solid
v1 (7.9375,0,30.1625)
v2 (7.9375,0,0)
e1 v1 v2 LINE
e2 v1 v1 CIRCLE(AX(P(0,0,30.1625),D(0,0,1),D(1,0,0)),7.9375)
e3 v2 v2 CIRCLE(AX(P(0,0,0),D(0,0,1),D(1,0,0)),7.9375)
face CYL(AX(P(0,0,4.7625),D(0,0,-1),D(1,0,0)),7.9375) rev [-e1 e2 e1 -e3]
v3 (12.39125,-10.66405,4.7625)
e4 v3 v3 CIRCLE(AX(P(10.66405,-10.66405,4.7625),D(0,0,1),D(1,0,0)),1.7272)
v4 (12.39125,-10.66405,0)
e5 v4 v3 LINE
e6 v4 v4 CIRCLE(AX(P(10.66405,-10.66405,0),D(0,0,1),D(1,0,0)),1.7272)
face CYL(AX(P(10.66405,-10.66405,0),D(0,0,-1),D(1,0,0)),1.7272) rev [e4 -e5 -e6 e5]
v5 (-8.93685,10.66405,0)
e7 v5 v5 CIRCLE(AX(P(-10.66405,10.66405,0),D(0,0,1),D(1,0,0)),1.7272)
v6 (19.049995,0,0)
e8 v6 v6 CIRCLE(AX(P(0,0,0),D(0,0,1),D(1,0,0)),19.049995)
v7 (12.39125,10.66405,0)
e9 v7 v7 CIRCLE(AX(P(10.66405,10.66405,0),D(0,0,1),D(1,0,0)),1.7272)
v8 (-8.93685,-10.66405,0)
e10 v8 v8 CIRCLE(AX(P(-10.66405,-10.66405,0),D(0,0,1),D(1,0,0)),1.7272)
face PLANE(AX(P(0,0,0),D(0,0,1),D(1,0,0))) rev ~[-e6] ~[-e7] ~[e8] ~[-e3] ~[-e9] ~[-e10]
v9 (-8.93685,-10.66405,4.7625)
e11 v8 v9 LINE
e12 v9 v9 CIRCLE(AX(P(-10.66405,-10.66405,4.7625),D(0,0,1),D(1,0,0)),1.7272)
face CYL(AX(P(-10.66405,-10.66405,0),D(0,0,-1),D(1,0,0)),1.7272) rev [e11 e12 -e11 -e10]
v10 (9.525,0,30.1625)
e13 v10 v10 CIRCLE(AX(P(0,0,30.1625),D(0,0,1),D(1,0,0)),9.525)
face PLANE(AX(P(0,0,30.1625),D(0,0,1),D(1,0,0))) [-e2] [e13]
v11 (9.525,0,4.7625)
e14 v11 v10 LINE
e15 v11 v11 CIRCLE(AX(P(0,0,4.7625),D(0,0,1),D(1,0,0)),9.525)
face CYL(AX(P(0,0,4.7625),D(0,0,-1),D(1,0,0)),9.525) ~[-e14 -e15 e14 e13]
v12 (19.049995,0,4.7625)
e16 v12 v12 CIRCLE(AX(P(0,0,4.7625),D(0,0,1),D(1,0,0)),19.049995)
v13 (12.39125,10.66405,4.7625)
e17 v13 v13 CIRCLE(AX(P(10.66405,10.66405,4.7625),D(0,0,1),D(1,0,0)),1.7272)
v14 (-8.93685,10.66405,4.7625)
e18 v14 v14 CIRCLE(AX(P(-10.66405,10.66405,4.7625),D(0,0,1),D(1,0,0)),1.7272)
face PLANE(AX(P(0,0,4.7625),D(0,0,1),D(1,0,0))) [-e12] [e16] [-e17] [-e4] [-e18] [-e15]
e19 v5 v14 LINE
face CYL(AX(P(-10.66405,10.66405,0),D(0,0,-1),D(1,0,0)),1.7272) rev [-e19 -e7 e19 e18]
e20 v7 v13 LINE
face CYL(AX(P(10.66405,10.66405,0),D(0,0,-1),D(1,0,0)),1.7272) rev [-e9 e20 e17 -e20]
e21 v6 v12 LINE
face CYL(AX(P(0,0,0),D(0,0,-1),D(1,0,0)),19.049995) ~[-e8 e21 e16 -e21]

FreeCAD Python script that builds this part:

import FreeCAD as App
import Part
import Sketcher
from FreeCAD import Vector
Q = App.Units.Quantity

doc = App.newDocument("Part")
params = doc.addObject("Spreadsheet::Sheet", "Params")
for row, (alias, value) in enumerate([
    ("sketch1_diameter", "0.136 in"),
    ("sketch1_diameter2", "0.625 in"),
    ("pad1_length", "0.1875 in"),
    ("sketch2_diameter", "0.75 in"),
    ("sketch2_diameter2", "0.625 in"),
    ("pad2_length", "1 in"),
], start=1):
    params.set(f"A{row}", alias)
    params.set(f"B{row}", "=" + value)
    params.setAlias(f"B{row}", alias)

body = doc.addObject("PartDesign::Body", "Body")

# Sketch on XY plane
sketch1 = doc.addObject("Sketcher::SketchObject", "Sketch")
body.addObject(sketch1)
sketch1.AttachmentSupport = (doc.XY_Plane, [""])
sketch1.MapMode = "FlatFace"
sketch1.addGeometry([
    Part.Circle(Vector(0, 0, 0), Vector(0, 0, 1), 19),  # 0
    Part.Circle(Vector(-10.7, -10.7, 0), Vector(0, 0, 1), 1.7),  # 1
    Part.Circle(Vector(10.7, -10.7, 0), Vector(0, 0, 1), 1.7),  # 2
    Part.Circle(Vector(-10.7, 10.7, 0), Vector(0, 0, 1), 1.7),  # 3
    Part.Circle(Vector(0, 0, 0), Vector(0, 0, 1), 7.9),  # 4
    Part.Circle(Vector(10.7, 10.7, 0), Vector(0, 0, 1), 1.7),  # 5
], False)
sketch1.addConstraint([
    Sketcher.Constraint("Coincident", 0, 3, -1, 1),
    Sketcher.Constraint("Coincident", 4, 3, -1, 1),
    Sketcher.Constraint("Equal", 1, 2),
    Sketcher.Constraint("Equal", 2, 3),
    Sketcher.Constraint("Equal", 3, 5),
    Sketcher.Constraint("Symmetric", 2, 3, 3, 3, -1, 1),
    Sketcher.Constraint("Symmetric", 1, 3, 5, 3, -1, 1),
    Sketcher.Constraint("Symmetric", 1, 3, 2, 3, -2),
    Sketcher.Constraint("Diameter", 1, Q("0.136 in")),
    Sketcher.Constraint("Diameter", 4, Q("0.625 in")),
    Sketcher.Constraint("Diameter", 0, 38.09999),
    Sketcher.Constraint("DistanceX", 1, 3, 2, 3, 21.3281),
    Sketcher.Constraint("DistanceY", 1, 3, 3, 3, 21.3281),
])
sketch1.setExpression("Constraints[8]", "Params.sketch1_diameter")
sketch1.setExpression("Constraints[9]", "Params.sketch1_diameter2")
pad1 = doc.addObject("PartDesign::Pad", "Pad")
body.addObject(pad1)
pad1.Profile = sketch1
pad1.setExpression("Length", "Params.pad1_length")

# Sketch on XY plane
sketch2 = doc.addObject("Sketcher::SketchObject", "Sketch001")
body.addObject(sketch2)
sketch2.AttachmentSupport = (doc.XY_Plane, [""])
sketch2.MapMode = "FlatFace"
sketch2.AttachmentOffset = App.Placement(Vector(0, 0, 0.1875 * 25.4), App.Rotation())
sketch2.addGeometry([
    Part.Circle(Vector(0, 0, 0), Vector(0, 0, 1), 10),
    Part.Circle(Vector(0, 0, 0), Vector(0, 0, 1), 8),
], False)
sketch2.addConstraint([
    Sketcher.Constraint("Coincident", 0, 3, -1, 1),
    Sketcher.Constraint("Coincident", 1, 3, -1, 1),
    Sketcher.Constraint("Diameter", 0, Q("0.75 in")),
    Sketcher.Constraint("Diameter", 1, Q("0.625 in")),
])
sketch2.setExpression("Constraints[2]", "Params.sketch2_diameter")
sketch2.setExpression("Constraints[3]", "Params.sketch2_diameter2")
pad2 = doc.addObject("PartDesign::Pad", "Pad001")
body.addObject(pad2)
pad2.Profile = sketch2
pad2.setExpression("Length", "Params.pad2_length")

doc.recompute()
